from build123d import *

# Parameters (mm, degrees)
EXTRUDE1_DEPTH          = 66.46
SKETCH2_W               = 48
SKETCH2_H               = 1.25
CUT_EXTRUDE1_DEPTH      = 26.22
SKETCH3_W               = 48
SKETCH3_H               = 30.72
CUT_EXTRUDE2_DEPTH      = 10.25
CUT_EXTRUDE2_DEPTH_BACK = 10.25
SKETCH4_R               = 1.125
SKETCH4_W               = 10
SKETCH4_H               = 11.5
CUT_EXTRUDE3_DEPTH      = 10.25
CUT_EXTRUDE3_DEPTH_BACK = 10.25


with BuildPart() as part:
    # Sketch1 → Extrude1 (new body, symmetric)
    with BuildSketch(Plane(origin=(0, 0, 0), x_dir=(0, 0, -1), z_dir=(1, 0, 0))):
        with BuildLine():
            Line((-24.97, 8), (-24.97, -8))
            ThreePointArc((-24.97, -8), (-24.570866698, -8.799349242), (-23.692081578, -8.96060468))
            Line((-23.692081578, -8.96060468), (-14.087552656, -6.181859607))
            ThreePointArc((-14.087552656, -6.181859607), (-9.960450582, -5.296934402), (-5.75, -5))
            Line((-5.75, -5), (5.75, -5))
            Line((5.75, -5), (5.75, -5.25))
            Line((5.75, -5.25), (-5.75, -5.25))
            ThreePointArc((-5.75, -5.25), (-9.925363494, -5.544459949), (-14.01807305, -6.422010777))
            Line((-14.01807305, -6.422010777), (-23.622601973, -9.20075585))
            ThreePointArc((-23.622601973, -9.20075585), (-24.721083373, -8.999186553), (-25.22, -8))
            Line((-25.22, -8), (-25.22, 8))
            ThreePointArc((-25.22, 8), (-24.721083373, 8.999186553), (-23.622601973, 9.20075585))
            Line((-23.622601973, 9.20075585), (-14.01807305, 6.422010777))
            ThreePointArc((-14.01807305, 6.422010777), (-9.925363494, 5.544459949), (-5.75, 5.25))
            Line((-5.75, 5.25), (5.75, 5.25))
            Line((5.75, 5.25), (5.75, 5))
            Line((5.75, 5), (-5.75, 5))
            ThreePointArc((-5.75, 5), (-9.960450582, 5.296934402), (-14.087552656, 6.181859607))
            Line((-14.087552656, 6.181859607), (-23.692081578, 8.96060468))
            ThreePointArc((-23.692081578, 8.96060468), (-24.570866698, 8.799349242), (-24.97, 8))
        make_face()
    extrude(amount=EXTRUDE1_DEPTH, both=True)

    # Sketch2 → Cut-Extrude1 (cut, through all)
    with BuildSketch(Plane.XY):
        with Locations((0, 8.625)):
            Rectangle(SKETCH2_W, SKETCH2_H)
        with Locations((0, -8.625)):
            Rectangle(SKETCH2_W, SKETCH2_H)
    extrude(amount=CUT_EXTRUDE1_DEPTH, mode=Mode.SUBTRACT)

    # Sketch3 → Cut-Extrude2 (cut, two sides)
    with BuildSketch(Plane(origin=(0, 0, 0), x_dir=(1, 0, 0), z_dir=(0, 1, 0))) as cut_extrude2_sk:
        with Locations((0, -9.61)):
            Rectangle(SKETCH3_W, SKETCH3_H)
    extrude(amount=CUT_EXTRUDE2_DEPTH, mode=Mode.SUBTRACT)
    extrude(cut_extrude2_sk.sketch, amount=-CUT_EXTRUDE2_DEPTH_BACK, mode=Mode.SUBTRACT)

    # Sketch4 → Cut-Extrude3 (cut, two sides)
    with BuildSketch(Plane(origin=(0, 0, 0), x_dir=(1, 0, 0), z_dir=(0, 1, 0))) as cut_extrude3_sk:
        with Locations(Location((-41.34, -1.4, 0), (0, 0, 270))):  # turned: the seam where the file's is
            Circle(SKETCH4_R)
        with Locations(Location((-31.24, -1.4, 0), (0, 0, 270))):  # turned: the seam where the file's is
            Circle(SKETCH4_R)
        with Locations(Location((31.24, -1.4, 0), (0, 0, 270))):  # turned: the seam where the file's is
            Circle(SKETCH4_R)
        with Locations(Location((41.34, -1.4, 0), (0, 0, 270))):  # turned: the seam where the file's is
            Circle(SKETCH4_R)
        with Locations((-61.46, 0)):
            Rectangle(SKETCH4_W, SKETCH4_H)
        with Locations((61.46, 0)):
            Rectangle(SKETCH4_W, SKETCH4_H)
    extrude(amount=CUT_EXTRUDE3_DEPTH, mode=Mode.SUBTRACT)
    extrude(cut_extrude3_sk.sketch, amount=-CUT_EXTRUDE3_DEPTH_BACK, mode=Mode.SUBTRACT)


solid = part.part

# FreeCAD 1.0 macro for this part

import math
import FreeCAD as App
import Part
import Sketcher
Q = App.Units.Quantity


def add_polygon(sketch, points):
    """Adds a closed chain of lines whose ends are joined by coincident constraints."""
    first, n = sketch.GeometryCount, len(points)
    for a, b in zip(points, points[1:] + points[:1]):
        sketch.addGeometry(Part.LineSegment(App.Vector(*a, 0), App.Vector(*b, 0)), False)
    for i in range(n):
        sketch.addConstraint(Sketcher.Constraint("Coincident", first + i, 2, first + (i + 1) % n, 1))

doc = App.newDocument("Part")
body = doc.addObject("PartDesign::Body", "Body")

sketch1 = body.newObject("Sketcher::SketchObject", "Sketch")
sketch1.AttachmentSupport = (doc.getObject("YZ_Plane"), [""])
sketch1.MapMode = "FlatFace"
sketch1.addGeometry(Part.LineSegment(App.Vector(-8, 24.97, 0), App.Vector(8, 24.97, 0)), False)
sketch1.addGeometry(Part.ArcOfCircle(Part.Circle(App.Vector(8, 23.97, 0), App.Vector(0, 0, 1), 1), math.radians(-16), math.radians(90)), False)
sketch1.addGeometry(Part.LineSegment(App.Vector(8.96, 23.69, 0), App.Vector(6.18, 14.09, 0)), False)
sketch1.addGeometry(Part.ArcOfCircle(Part.Circle(App.Vector(35, 5.75, 0), App.Vector(0, 0, 1), 30), math.radians(163.86), math.radians(180)), False)
sketch1.addGeometry(Part.LineSegment(App.Vector(5, 5.75, 0), App.Vector(5, -5.75, 0)), False)
sketch1.addGeometry(Part.LineSegment(App.Vector(5, -5.75, 0), App.Vector(5.25, -5.75, 0)), False)
sketch1.addGeometry(Part.LineSegment(App.Vector(5.25, -5.75, 0), App.Vector(5.25, 5.75, 0)), False)
sketch1.addGeometry(Part.ArcOfCircle(Part.Circle(App.Vector(35, 5.75, 0), App.Vector(0, 0, 1), 29.75), math.radians(163.86), math.radians(180)), False)
sketch1.addGeometry(Part.LineSegment(App.Vector(6.42, 14.02, 0), App.Vector(9.2, 23.62, 0)), False)
sketch1.addGeometry(Part.ArcOfCircle(Part.Circle(App.Vector(8, 23.97, 0), App.Vector(0, 0, 1), 1.25), math.radians(-16), math.radians(90)), False)
sketch1.addGeometry(Part.LineSegment(App.Vector(8, 25.22, 0), App.Vector(-8, 25.22, 0)), False)
sketch1.addGeometry(Part.ArcOfCircle(Part.Circle(App.Vector(-8, 23.97, 0), App.Vector(0, 0, 1), 1.25), math.radians(90), math.radians(196)), False)
sketch1.addGeometry(Part.LineSegment(App.Vector(-9.2, 23.62, 0), App.Vector(-6.42, 14.02, 0)), False)
sketch1.addGeometry(Part.ArcOfCircle(Part.Circle(App.Vector(-35, 5.75, 0), App.Vector(0, 0, 1), 29.75), math.radians(0), math.radians(16.14)), False)
sketch1.addGeometry(Part.LineSegment(App.Vector(-5.25, 5.75, 0), App.Vector(-5.25, -5.75, 0)), False)
sketch1.addGeometry(Part.LineSegment(App.Vector(-5.25, -5.75, 0), App.Vector(-5, -5.75, 0)), False)
sketch1.addGeometry(Part.LineSegment(App.Vector(-5, -5.75, 0), App.Vector(-5, 5.75, 0)), False)
sketch1.addGeometry(Part.ArcOfCircle(Part.Circle(App.Vector(-35, 5.75, 0), App.Vector(0, 0, 1), 30), math.radians(0), math.radians(16.14)), False)
sketch1.addGeometry(Part.LineSegment(App.Vector(-6.18, 14.09, 0), App.Vector(-8.96, 23.69, 0)), False)
sketch1.addGeometry(Part.ArcOfCircle(Part.Circle(App.Vector(-8, 23.97, 0), App.Vector(0, 0, 1), 1), math.radians(90), math.radians(196)), False)
sketch1.addConstraint(Sketcher.Constraint("Tangent", 0, 2, 1, 2))
sketch1.addConstraint(Sketcher.Constraint("Tangent", 1, 1, 2, 1))
sketch1.addConstraint(Sketcher.Constraint("Tangent", 2, 2, 3, 1))
sketch1.addConstraint(Sketcher.Constraint("Tangent", 3, 2, 4, 1))
sketch1.addConstraint(Sketcher.Constraint("Coincident", 4, 2, 5, 1))
sketch1.addConstraint(Sketcher.Constraint("Coincident", 5, 2, 6, 1))
sketch1.addConstraint(Sketcher.Constraint("Tangent", 6, 2, 7, 2))
sketch1.addConstraint(Sketcher.Constraint("Tangent", 7, 1, 8, 1))
sketch1.addConstraint(Sketcher.Constraint("Tangent", 8, 2, 9, 1))
sketch1.addConstraint(Sketcher.Constraint("Tangent", 9, 2, 10, 1))
sketch1.addConstraint(Sketcher.Constraint("Tangent", 10, 2, 11, 1))
sketch1.addConstraint(Sketcher.Constraint("Tangent", 11, 2, 12, 1))
sketch1.addConstraint(Sketcher.Constraint("Tangent", 12, 2, 13, 2))
sketch1.addConstraint(Sketcher.Constraint("Tangent", 13, 1, 14, 1))
sketch1.addConstraint(Sketcher.Constraint("Coincident", 14, 2, 15, 1))
sketch1.addConstraint(Sketcher.Constraint("Coincident", 15, 2, 16, 1))
sketch1.addConstraint(Sketcher.Constraint("Tangent", 16, 2, 17, 1))
sketch1.addConstraint(Sketcher.Constraint("Tangent", 17, 2, 18, 1))
sketch1.addConstraint(Sketcher.Constraint("Tangent", 18, 2, 19, 2))
sketch1.addConstraint(Sketcher.Constraint("Tangent", 19, 1, 0, 1))
sketch1.addConstraint(Sketcher.Constraint("Horizontal", 0))
sketch1.addConstraint(Sketcher.Constraint("Vertical", 4))
sketch1.addConstraint(Sketcher.Constraint("Horizontal", 5))
sketch1.addConstraint(Sketcher.Constraint("Vertical", 6))
sketch1.addConstraint(Sketcher.Constraint("Horizontal", 10))
sketch1.addConstraint(Sketcher.Constraint("Vertical", 14))
sketch1.addConstraint(Sketcher.Constraint("Horizontal", 15))
sketch1.addConstraint(Sketcher.Constraint("Vertical", 16))
sketch1.addConstraint(Sketcher.Constraint("Coincident", 7, 3, 3, 3))
sketch1.addConstraint(Sketcher.Constraint("Coincident", 9, 3, 1, 3))
sketch1.addConstraint(Sketcher.Constraint("Coincident", 17, 3, 13, 3))
sketch1.addConstraint(Sketcher.Constraint("Coincident", 19, 3, 11, 3))
sketch1.addConstraint(Sketcher.Constraint("Equal", 9, 11))
sketch1.addConstraint(Sketcher.Constraint("Equal", 7, 13))
sketch1.addConstraint(Sketcher.Constraint("Equal", 3, 17))
sketch1.addConstraint(Sketcher.Constraint("Symmetric", 5, 2, 13, 1, -1, 1))
sketch1.addConstraint(Sketcher.Constraint("Symmetric", 8, 2, 11, 2, -2))
sketch1.addConstraint(Sketcher.Constraint("Parallel", 2, 8))
sketch1.addConstraint(Sketcher.Constraint("Horizontal", 5, 2, 14, 2))
sketch1.addConstraint(Sketcher.Constraint("Radius", 1, Q("1 mm")))
sketch1.addConstraint(Sketcher.Constraint("Radius", 3, Q("30 mm")))
sketch1.addConstraint(Sketcher.Constraint("DistanceX", 0, 1, 0, 2, Q("16 mm")))
sketch1.addConstraint(Sketcher.Constraint("Radius", 7, Q("29.75 mm")))
sketch1.addConstraint(Sketcher.Constraint("DistanceY", 4, 2, 4, 1, Q("11.5 mm")))
sketch1.addConstraint(Sketcher.Constraint("DistanceX", -1, 1, 3, 3, Q("35 mm")))
sketch1.addConstraint(Sketcher.Constraint("DistanceY", -1, 1, 1, 3, Q("23.97 mm")))
pad1 = body.newObject("PartDesign::Pad", "Pad")
pad1.Profile = sketch1
pad1.Length = 132.92
pad1.Midplane = True

sketch2 = body.newObject("Sketcher::SketchObject", "Sketch001")
sketch2.AttachmentSupport = (doc.getObject("XY_Plane"), [""])
sketch2.MapMode = "FlatFace"
add_polygon(sketch2, [(-24, 9.2), (-24, 8), (24, 8), (24, 9.2)])
add_polygon(sketch2, [(-24, -8), (-24, -9.2), (24, -9.2), (24, -8)])
sketch2.addConstraint(Sketcher.Constraint("Vertical", 0))
sketch2.addConstraint(Sketcher.Constraint("Horizontal", 1))
sketch2.addConstraint(Sketcher.Constraint("Vertical", 2))
sketch2.addConstraint(Sketcher.Constraint("Horizontal", 3))
sketch2.addConstraint(Sketcher.Constraint("Vertical", 4))
sketch2.addConstraint(Sketcher.Constraint("Horizontal", 5))
sketch2.addConstraint(Sketcher.Constraint("Vertical", 6))
sketch2.addConstraint(Sketcher.Constraint("Horizontal", 7))
sketch2.addConstraint(Sketcher.Constraint("Symmetric", 2, 2, 4, 2, -1, 1))
sketch2.addConstraint(Sketcher.Constraint("Symmetric", 0, 2, 6, 2, -1, 1))
sketch2.addConstraint(Sketcher.Constraint("Vertical", 3, 2, 4, 2))
sketch2.addConstraint(Sketcher.Constraint("DistanceX", 1, 1, 1, 2, Q("48 mm")))
sketch2.addConstraint(Sketcher.Constraint("DistanceY", -1, 1, 0, 2, Q("8 mm")))
sketch2.addConstraint(Sketcher.Constraint("DistanceY", 0, 2, 0, 1, Q("1.25 mm")))
pocket1 = body.newObject("PartDesign::Pocket", "Pocket")
pocket1.Profile = sketch2
pocket1.Type = "ThroughAll"
pocket1.Reversed = True

sketch3 = body.newObject("Sketcher::SketchObject", "Sketch002")
sketch3.AttachmentSupport = (doc.getObject("XZ_Plane"), [""])
sketch3.MapMode = "FlatFace"
add_polygon(sketch3, [(-24, -6), (-24, 25), (24, 25), (24, -6)])
sketch3.addConstraint(Sketcher.Constraint("Vertical", 0))
sketch3.addConstraint(Sketcher.Constraint("Horizontal", 1))
sketch3.addConstraint(Sketcher.Constraint("Vertical", 2))
sketch3.addConstraint(Sketcher.Constraint("Horizontal", 3))
sketch3.addConstraint(Sketcher.Constraint("DistanceX", 1, 1, 1, 2, Q("48 mm")))
sketch3.addConstraint(Sketcher.Constraint("DistanceX", 0, 2, -1, 1, Q("24 mm")))
sketch3.addConstraint(Sketcher.Constraint("DistanceY", 0, 1, 0, 2, Q("30.72 mm")))
sketch3.addConstraint(Sketcher.Constraint("DistanceY", -1, 1, 0, 2, Q("24.97 mm")))
pocket2 = body.newObject("PartDesign::Pocket", "Pocket001")
pocket2.Profile = sketch3
pocket2.Type = "ThroughAll"
pocket2.Midplane = True

sketch4 = body.newObject("Sketcher::SketchObject", "Sketch003")
sketch4.AttachmentSupport = (doc.getObject("XZ_Plane"), [""])
sketch4.MapMode = "FlatFace"
sketch4.addGeometry(Part.Circle(App.Vector(-41.3, 1.4, 0), App.Vector(0, 0, 1), 1.1), False)
sketch4.addGeometry(Part.Circle(App.Vector(-31.2, 1.4, 0), App.Vector(0, 0, 1), 1.1), False)
sketch4.addGeometry(Part.Circle(App.Vector(31.2, 1.4, 0), App.Vector(0, 0, 1), 1.1), False)
sketch4.addGeometry(Part.Circle(App.Vector(41.3, 1.4, 0), App.Vector(0, 0, 1), 1.1), False)
add_polygon(sketch4, [(-66.5, -5.8), (-66.5, 5.8), (-56.5, 5.8), (-56.5, -5.8)])
add_polygon(sketch4, [(56.5, -5.8), (56.5, 5.8), (66.5, 5.8), (66.5, -5.8)])
sketch4.addConstraint(Sketcher.Constraint("Vertical", 4))
sketch4.addConstraint(Sketcher.Constraint("Horizontal", 5))
sketch4.addConstraint(Sketcher.Constraint("Vertical", 6))
sketch4.addConstraint(Sketcher.Constraint("Horizontal", 7))
sketch4.addConstraint(Sketcher.Constraint("Vertical", 8))
sketch4.addConstraint(Sketcher.Constraint("Horizontal", 9))
sketch4.addConstraint(Sketcher.Constraint("Vertical", 10))
sketch4.addConstraint(Sketcher.Constraint("Horizontal", 11))
sketch4.addConstraint(Sketcher.Constraint("Equal", 0, 1))
sketch4.addConstraint(Sketcher.Constraint("Equal", 1, 2))
sketch4.addConstraint(Sketcher.Constraint("Equal", 2, 3))
sketch4.addConstraint(Sketcher.Constraint("Symmetric", 6, 2, 8, 2, -1, 1))
sketch4.addConstraint(Sketcher.Constraint("Symmetric", 4, 2, 10, 2, -1, 1))
sketch4.addConstraint(Sketcher.Constraint("Symmetric", 1, 3, 2, 3, -2))
sketch4.addConstraint(Sketcher.Constraint("Symmetric", 0, 3, 3, 3, -2))
sketch4.addConstraint(Sketcher.Constraint("Horizontal", 0, 3, 1, 3))
sketch4.addConstraint(Sketcher.Constraint("Horizontal", 5, 2, 8, 2))
sketch4.addConstraint(Sketcher.Constraint("Diameter", 0, Q("2.25 mm")))
sketch4.addConstraint(Sketcher.Constraint("DistanceX", 5, 1, 5, 2, Q("10 mm")))
sketch4.addConstraint(Sketcher.Constraint("DistanceY", 4, 1, 4, 2, Q("11.5 mm")))
sketch4.addConstraint(Sketcher.Constraint("DistanceY", -1, 1, 0, 3, Q("1.4 mm")))
sketch4.addConstraint(Sketcher.Constraint("DistanceX", 0, 3, 1, 3, Q("10.1 mm")))
sketch4.addConstraint(Sketcher.Constraint("DistanceX", 4, 2, 2, 3, Q("97.7 mm")))
sketch4.addConstraint(Sketcher.Constraint("DistanceX", 0, 3, -1, 1, Q("41.34 mm")))
pocket3 = body.newObject("PartDesign::Pocket", "Pocket002")
pocket3.Profile = sketch4
pocket3.Type = "ThroughAll"
pocket3.Midplane = True

doc.recompute()
